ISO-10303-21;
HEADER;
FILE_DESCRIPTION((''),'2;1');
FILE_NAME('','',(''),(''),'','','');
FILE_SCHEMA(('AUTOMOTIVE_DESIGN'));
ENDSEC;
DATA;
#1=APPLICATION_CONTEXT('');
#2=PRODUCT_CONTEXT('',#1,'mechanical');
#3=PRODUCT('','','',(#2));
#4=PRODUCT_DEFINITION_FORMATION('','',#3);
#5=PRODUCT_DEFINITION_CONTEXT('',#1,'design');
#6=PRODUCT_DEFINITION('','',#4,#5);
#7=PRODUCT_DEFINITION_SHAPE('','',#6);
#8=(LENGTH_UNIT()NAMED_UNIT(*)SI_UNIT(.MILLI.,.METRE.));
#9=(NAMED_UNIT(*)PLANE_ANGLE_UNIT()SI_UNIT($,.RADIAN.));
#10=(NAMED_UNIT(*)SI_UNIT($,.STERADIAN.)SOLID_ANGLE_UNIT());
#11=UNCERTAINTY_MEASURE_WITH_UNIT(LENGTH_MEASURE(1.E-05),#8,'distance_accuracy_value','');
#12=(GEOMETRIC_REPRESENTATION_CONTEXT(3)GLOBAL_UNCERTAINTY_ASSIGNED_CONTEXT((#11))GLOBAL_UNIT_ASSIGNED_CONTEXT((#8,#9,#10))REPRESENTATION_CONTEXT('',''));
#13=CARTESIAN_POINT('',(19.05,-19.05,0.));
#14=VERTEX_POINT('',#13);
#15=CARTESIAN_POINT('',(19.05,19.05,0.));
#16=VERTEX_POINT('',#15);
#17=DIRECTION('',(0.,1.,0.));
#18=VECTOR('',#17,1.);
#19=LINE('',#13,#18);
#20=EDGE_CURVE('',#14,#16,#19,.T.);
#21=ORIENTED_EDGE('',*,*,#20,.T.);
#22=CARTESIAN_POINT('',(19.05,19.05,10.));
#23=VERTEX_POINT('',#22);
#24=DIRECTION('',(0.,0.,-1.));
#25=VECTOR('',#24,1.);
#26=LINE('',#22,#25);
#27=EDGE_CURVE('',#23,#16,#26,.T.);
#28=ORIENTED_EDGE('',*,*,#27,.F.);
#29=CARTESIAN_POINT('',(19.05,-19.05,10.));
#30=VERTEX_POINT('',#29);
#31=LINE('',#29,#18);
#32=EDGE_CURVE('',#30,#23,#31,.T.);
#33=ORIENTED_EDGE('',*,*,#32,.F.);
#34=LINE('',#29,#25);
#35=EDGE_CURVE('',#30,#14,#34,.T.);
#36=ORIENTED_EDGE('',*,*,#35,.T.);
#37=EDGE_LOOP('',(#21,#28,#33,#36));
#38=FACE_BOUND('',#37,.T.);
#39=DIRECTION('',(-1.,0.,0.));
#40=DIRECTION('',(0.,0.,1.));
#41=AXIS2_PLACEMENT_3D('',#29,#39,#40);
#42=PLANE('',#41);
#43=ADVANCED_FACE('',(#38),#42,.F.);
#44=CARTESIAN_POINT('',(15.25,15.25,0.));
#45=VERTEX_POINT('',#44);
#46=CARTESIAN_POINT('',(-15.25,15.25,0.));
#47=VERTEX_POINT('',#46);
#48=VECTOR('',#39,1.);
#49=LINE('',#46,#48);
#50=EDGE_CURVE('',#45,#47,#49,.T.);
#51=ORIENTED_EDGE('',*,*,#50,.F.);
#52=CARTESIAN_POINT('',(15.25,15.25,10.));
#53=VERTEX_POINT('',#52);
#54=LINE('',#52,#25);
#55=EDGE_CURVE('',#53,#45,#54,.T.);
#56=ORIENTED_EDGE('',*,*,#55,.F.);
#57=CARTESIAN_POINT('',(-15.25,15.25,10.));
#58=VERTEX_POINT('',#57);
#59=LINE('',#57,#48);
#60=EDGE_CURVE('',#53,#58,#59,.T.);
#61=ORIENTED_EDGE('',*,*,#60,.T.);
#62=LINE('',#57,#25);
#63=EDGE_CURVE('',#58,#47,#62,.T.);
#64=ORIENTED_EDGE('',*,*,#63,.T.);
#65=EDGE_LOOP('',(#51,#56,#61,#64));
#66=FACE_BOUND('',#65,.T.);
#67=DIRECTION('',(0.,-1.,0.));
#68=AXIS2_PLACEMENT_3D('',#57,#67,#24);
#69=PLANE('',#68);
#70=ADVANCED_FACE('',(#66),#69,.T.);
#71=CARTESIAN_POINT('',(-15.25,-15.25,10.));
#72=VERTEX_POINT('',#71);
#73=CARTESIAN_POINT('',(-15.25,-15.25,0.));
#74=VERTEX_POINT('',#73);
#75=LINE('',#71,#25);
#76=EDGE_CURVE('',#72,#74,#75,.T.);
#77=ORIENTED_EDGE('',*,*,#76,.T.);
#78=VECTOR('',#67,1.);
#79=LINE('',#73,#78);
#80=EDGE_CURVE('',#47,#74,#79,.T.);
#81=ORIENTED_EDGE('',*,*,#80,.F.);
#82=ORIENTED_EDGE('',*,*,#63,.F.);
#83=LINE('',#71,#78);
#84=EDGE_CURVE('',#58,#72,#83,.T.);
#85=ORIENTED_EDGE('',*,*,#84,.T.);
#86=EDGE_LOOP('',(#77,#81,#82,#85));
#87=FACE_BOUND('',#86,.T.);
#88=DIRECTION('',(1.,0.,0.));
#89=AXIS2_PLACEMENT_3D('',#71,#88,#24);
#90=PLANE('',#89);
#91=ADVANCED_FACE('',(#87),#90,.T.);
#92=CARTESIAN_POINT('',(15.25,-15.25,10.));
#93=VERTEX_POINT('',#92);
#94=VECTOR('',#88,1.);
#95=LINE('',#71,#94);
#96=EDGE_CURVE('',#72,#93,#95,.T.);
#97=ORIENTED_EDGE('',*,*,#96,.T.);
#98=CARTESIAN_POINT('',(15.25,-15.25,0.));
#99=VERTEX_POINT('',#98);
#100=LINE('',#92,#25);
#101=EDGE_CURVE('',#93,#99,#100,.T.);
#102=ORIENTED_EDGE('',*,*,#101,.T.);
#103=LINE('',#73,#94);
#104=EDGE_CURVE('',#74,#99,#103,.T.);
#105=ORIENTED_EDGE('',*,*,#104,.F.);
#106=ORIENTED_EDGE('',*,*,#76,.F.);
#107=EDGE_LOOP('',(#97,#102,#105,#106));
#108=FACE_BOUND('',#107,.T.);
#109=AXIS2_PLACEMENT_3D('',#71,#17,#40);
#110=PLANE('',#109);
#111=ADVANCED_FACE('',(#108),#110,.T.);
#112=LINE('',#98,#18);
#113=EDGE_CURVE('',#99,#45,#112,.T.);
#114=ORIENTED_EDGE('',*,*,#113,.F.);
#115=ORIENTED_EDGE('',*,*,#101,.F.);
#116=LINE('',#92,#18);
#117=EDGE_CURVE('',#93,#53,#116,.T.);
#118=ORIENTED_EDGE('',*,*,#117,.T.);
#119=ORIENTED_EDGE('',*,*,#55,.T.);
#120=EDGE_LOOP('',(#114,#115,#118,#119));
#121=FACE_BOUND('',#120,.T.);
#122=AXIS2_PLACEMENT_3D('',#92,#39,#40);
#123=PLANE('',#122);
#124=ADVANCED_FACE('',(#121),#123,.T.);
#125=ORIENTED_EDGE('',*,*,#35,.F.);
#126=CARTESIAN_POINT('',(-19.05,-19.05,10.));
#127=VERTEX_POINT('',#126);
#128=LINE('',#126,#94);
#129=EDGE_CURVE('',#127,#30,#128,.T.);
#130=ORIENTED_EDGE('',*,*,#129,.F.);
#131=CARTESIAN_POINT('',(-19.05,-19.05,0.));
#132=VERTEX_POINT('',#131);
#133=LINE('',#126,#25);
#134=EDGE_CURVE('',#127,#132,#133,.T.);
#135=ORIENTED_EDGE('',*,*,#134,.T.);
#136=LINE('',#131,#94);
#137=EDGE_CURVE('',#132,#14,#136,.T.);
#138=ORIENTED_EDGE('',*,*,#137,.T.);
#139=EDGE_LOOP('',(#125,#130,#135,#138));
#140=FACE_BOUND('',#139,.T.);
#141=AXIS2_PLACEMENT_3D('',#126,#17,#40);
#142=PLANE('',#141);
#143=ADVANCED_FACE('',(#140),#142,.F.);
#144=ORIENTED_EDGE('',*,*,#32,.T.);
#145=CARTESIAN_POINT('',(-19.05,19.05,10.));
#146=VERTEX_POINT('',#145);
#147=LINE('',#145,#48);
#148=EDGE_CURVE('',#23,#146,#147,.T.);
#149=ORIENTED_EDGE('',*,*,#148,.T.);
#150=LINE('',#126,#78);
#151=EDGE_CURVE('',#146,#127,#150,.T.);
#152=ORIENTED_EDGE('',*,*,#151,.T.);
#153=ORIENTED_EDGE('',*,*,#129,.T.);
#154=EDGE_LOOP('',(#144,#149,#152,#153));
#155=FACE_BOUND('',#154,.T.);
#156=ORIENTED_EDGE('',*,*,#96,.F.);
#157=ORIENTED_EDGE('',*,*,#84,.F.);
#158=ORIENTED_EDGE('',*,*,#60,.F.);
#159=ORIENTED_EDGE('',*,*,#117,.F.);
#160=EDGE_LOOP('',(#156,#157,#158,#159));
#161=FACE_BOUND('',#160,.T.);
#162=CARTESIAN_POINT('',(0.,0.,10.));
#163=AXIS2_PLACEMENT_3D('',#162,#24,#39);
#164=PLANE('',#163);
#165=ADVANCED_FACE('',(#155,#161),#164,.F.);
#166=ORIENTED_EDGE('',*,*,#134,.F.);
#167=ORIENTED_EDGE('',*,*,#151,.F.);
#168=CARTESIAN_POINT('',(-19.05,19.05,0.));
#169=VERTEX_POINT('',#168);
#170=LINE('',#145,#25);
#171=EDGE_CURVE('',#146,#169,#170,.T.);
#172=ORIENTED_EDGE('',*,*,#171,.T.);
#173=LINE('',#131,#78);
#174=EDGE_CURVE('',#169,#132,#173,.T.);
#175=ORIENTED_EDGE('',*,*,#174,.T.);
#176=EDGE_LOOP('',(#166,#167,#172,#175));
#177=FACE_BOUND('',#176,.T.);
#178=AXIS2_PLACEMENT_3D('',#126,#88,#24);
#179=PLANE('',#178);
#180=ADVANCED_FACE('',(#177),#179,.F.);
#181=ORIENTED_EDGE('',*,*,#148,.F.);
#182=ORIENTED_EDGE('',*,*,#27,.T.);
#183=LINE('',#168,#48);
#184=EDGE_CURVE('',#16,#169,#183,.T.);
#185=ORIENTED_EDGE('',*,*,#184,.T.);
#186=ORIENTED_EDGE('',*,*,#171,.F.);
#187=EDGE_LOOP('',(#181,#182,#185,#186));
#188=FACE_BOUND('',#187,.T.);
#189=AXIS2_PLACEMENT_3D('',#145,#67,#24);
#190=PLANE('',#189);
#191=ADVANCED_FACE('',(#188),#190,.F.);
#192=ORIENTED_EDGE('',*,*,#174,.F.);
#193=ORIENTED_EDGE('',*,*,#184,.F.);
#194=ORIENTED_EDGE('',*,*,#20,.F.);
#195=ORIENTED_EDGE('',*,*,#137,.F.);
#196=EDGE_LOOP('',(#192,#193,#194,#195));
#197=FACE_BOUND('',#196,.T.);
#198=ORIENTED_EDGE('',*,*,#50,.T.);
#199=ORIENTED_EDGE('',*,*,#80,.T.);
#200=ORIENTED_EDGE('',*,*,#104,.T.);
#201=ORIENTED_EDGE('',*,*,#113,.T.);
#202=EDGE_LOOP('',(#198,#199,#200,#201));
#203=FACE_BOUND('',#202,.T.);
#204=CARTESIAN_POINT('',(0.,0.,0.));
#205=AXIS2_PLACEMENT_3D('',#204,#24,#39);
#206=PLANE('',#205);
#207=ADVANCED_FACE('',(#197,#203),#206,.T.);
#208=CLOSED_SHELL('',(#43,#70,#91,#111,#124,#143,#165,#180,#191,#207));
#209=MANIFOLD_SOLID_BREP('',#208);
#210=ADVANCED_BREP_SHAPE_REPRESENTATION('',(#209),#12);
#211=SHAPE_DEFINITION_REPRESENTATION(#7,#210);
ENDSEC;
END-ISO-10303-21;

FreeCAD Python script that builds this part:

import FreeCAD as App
import Part
import Sketcher
Q = App.Units.Quantity

doc = App.newDocument("Part")
body = doc.addObject("PartDesign::Body", "Body")

# Sketch on XY plane
sketch1 = body.newObject("Sketcher::SketchObject", "Sketch")
sketch1.AttachmentSupport = (doc.getObject("XY_Plane"), [""])
sketch1.MapMode = "FlatFace"
sketch1.addGeometry(Part.LineSegment(App.Vector(-19, 19, 0), App.Vector(-19, -19, 0)), False)
sketch1.addGeometry(Part.LineSegment(App.Vector(-19, -19, 0), App.Vector(19, -19, 0)), False)
sketch1.addGeometry(Part.LineSegment(App.Vector(19, -19, 0), App.Vector(19, 19, 0)), False)
sketch1.addGeometry(Part.LineSegment(App.Vector(19, 19, 0), App.Vector(-19, 19, 0)), False)
sketch1.addGeometry(Part.LineSegment(App.Vector(15, -15, 0), App.Vector(-15, -15, 0)), False)
sketch1.addGeometry(Part.LineSegment(App.Vector(-15, -15, 0), App.Vector(-15, 15, 0)), False)
sketch1.addGeometry(Part.LineSegment(App.Vector(-15, 15, 0), App.Vector(15, 15, 0)), False)
sketch1.addGeometry(Part.LineSegment(App.Vector(15, 15, 0), App.Vector(15, -15, 0)), False)
sketch1.addConstraint(Sketcher.Constraint("Coincident", 0, 2, 1, 1))
sketch1.addConstraint(Sketcher.Constraint("Coincident", 1, 2, 2, 1))
sketch1.addConstraint(Sketcher.Constraint("Coincident", 2, 2, 3, 1))
sketch1.addConstraint(Sketcher.Constraint("Coincident", 3, 2, 0, 1))
sketch1.addConstraint(Sketcher.Constraint("Coincident", 4, 2, 5, 1))
sketch1.addConstraint(Sketcher.Constraint("Coincident", 5, 2, 6, 1))
sketch1.addConstraint(Sketcher.Constraint("Coincident", 6, 2, 7, 1))
sketch1.addConstraint(Sketcher.Constraint("Coincident", 7, 2, 4, 1))
sketch1.addConstraint(Sketcher.Constraint("Vertical", 0))
sketch1.addConstraint(Sketcher.Constraint("Horizontal", 1))
sketch1.addConstraint(Sketcher.Constraint("Vertical", 2))
sketch1.addConstraint(Sketcher.Constraint("Horizontal", 3))
sketch1.addConstraint(Sketcher.Constraint("Horizontal", 4))
sketch1.addConstraint(Sketcher.Constraint("Vertical", 5))
sketch1.addConstraint(Sketcher.Constraint("Horizontal", 6))
sketch1.addConstraint(Sketcher.Constraint("Vertical", 7))
sketch1.addConstraint(Sketcher.Constraint("Symmetric", 0, 2, 2, 2, -1, 1))
sketch1.addConstraint(Sketcher.Constraint("Symmetric", 4, 2, 6, 2, -1, 1))
sketch1.addConstraint(Sketcher.Constraint("Equal", 3, 0))
sketch1.addConstraint(Sketcher.Constraint("Equal", 6, 5))
sketch1.addConstraint(Sketcher.Constraint("DistanceX", 1, 1, 1, 2, Q("38.1 mm")))
sketch1.addConstraint(Sketcher.Constraint("DistanceX", 4, 2, 4, 1, Q("30.5 mm")))
pad1 = body.newObject("PartDesign::Pad", "Pad")
pad1.Profile = sketch1
pad1.Length = 10

doc.recompute()
